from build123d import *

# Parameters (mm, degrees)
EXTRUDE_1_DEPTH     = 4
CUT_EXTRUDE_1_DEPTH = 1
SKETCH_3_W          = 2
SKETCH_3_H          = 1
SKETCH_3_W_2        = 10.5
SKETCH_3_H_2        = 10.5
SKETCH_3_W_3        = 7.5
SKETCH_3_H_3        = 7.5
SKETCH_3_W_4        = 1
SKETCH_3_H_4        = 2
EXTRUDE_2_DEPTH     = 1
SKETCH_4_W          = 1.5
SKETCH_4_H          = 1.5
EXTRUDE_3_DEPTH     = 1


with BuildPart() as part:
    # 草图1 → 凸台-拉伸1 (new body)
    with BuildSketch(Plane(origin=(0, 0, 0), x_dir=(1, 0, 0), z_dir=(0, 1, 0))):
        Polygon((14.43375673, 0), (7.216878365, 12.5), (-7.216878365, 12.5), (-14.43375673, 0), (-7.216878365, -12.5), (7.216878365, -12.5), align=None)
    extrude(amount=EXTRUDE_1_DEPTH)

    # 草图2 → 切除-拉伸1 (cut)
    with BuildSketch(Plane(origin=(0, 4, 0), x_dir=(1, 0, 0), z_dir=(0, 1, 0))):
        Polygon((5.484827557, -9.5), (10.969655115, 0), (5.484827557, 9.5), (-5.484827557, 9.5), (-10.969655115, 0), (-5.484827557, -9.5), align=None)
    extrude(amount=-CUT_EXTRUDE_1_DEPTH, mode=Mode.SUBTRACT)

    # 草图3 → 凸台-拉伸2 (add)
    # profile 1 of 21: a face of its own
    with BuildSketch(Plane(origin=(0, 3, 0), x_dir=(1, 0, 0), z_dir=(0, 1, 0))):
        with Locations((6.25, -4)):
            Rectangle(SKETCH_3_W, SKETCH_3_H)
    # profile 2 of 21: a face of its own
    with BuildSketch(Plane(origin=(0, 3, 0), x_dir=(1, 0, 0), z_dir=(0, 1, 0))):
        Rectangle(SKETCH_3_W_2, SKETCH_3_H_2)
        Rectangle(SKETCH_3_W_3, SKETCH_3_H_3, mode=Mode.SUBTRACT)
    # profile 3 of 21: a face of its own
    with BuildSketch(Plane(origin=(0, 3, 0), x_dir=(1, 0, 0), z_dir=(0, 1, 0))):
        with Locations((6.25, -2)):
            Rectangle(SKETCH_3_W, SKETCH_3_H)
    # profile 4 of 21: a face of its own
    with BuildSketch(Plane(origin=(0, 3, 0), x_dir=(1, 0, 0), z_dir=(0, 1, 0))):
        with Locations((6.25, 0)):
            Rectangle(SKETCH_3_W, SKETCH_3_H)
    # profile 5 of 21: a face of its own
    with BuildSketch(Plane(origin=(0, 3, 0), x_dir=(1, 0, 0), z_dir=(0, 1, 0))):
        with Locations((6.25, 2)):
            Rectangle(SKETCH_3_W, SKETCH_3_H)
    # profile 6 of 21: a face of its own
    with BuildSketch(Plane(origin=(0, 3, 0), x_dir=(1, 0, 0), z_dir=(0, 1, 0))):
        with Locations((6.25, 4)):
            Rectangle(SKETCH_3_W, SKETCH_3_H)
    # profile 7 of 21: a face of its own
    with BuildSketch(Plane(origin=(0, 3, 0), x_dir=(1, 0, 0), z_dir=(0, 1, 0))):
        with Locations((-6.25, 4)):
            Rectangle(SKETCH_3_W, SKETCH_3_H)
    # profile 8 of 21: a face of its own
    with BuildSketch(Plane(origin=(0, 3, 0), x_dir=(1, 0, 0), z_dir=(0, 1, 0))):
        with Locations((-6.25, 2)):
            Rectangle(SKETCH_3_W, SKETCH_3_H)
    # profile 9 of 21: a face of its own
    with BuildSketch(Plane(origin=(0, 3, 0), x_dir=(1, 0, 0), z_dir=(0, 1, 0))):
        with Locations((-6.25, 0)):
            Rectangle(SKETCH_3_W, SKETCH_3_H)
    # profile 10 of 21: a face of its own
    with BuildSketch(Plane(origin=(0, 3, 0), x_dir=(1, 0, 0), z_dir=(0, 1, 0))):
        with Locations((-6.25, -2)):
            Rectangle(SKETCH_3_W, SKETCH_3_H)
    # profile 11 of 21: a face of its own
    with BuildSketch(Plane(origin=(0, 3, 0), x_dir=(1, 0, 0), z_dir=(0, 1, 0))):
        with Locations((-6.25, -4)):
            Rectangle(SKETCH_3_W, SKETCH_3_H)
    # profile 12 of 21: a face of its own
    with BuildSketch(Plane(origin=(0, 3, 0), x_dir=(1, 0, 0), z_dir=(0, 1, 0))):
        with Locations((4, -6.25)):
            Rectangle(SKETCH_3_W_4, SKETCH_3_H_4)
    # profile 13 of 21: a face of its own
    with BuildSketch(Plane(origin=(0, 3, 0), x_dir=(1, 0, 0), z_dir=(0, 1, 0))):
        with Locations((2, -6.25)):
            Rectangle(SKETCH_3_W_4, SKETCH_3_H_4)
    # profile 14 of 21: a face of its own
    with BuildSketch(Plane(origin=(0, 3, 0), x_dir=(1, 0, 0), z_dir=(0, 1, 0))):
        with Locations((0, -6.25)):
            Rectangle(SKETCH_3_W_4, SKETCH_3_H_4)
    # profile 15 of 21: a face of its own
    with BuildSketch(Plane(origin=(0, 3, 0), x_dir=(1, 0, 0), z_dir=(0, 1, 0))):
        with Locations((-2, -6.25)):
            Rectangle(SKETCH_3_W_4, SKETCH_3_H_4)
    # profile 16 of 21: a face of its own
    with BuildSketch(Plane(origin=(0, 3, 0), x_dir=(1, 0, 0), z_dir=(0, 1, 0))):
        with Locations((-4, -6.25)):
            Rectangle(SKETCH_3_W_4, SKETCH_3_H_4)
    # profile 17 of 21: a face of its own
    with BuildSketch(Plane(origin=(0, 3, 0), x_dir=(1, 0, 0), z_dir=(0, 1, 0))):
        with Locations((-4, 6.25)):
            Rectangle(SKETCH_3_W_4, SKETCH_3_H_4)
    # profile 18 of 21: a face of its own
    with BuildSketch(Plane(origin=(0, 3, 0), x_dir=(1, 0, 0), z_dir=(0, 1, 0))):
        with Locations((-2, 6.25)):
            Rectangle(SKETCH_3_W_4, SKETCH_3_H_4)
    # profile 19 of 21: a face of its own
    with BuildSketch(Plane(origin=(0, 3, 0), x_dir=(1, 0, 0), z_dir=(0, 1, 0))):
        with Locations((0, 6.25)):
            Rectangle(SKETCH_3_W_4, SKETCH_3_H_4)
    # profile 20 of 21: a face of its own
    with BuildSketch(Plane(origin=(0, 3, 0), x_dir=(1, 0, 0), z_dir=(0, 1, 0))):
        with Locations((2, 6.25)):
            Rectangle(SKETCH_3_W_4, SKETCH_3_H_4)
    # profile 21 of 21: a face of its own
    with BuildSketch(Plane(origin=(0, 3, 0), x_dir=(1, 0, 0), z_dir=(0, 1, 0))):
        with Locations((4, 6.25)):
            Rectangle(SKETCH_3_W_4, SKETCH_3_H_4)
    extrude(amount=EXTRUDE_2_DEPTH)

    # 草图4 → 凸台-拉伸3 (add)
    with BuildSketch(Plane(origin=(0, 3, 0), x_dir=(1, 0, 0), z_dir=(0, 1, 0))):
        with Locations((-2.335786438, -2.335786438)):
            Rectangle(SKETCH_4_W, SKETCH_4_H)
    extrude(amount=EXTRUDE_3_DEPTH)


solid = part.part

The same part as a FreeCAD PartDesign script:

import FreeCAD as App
import Part
import Sketcher
Q = App.Units.Quantity


def add_polygon(sketch, points):
    """Adds a closed chain of lines whose ends are joined by coincident constraints."""
    first, n = sketch.GeometryCount, len(points)
    for a, b in zip(points, points[1:] + points[:1]):
        sketch.addGeometry(Part.LineSegment(App.Vector(*a, 0), App.Vector(*b, 0)), False)
    for i in range(n):
        sketch.addConstraint(Sketcher.Constraint("Coincident", first + i, 2, first + (i + 1) % n, 1))

doc = App.newDocument("Part")
body = doc.addObject("PartDesign::Body", "Body")

# Sketch on XZ plane
sketch1 = body.newObject("Sketcher::SketchObject", "Sketch")
sketch1.AttachmentSupport = (doc.getObject("XZ_Plane"), [""])
sketch1.MapMode = "FlatFace"
add_polygon(sketch1, [(14.433757, 0), (7.216878, -12.5), (-7.216878, -12.5), (-14.433757, 0), (-7.216878, 12.5), (7.216878, 12.5)])  # lines 0-5
sketch1.addConstraint([
    Sketcher.Constraint("Horizontal", 1),
    Sketcher.Constraint("Horizontal", 4),
    Sketcher.Constraint("Symmetric", 0, 2, 3, 2, -1, 1),
    Sketcher.Constraint("Symmetric", 2, 2, 5, 2, -1, 1),
    Sketcher.Constraint("PointOnObject", 2, 2, -1),
    Sketcher.Constraint("Parallel", 2, 5),
    Sketcher.Constraint("Vertical", 1, 2, 3, 2),
    Sketcher.Constraint("Angle", 0, Q("-120 deg")),
    Sketcher.Constraint("DistanceY", 1, 2, 3, 2, Q("25 mm")),
    Sketcher.Constraint("DistanceX", 1, 2, 1, 1, Q("14.433757 mm")),
])
pad1 = body.newObject("PartDesign::Pad", "Pad")
pad1.Profile = sketch1
pad1.Length = 4
pad1.Reversed = True

# Sketch on XZ plane
sketch2 = body.newObject("Sketcher::SketchObject", "Sketch001")
sketch2.AttachmentSupport = (doc.getObject("XZ_Plane"), [""])
sketch2.MapMode = "FlatFace"
sketch2.AttachmentOffset = App.Placement(App.Vector(0, 0, -4), App.Rotation())
add_polygon(sketch2, [(5.484828, 9.5), (10.969655, 0), (5.484828, -9.5), (-5.484828, -9.5), (-10.969655, 0), (-5.484828, 9.5)])  # lines 0-5
sketch2.addConstraint([
    Sketcher.Constraint("Horizontal", 2),
    Sketcher.Constraint("Horizontal", 5),
    Sketcher.Constraint("Symmetric", 0, 2, 3, 2, -1, 1),
    Sketcher.Constraint("Symmetric", 1, 2, 4, 2, -1, 1),
    Sketcher.Constraint("PointOnObject", 0, 2, -1),
    Sketcher.Constraint("Parallel", 0, 3),
    Sketcher.Constraint("Vertical", 2, 2, 4, 2),
    Sketcher.Constraint("Angle", 0, Q("-60 deg")),
    Sketcher.Constraint("DistanceY", 2, 2, 4, 2, Q("19 mm")),
    Sketcher.Constraint("DistanceX", 2, 2, 2, 1, Q("10.969655 mm")),
])
pocket1 = body.newObject("PartDesign::Pocket", "Pocket")
pocket1.Profile = sketch2
pocket1.Length = 1
pocket1.Reversed = True

# Sketch on XZ plane
sketch3 = body.newObject("Sketcher::SketchObject", "Sketch002")
sketch3.AttachmentSupport = (doc.getObject("XZ_Plane"), [""])
sketch3.MapMode = "FlatFace"
sketch3.AttachmentOffset = App.Placement(App.Vector(0, 0, -3), App.Rotation())
add_polygon(sketch3, [(5.25, 4.5), (7.25, 4.5), (7.25, 3.5), (5.25, 3.5), (5.25, 2.5), (7.25, 2.5), (7.25, 1.5), (5.25, 1.5), (5.25, 0.5), (7.25, 0.5), (7.25, -0.5), (5.25, -0.5), (5.25, -1.5), (7.25, -1.5), (7.25, -2.5), (5.25, -2.5), (5.25, -3.5), (7.25, -3.5), (7.25, -4.5), (5.25, -4.5), (5.25, -5.25), (4.5, -5.25), (4.5, -7.25), (3.5, -7.25), (3.5, -5.25), (2.5, -5.25), (2.5, -7.25), (1.5, -7.25), (1.5, -5.25), (0.5, -5.25), (0.5, -7.25), (-0.5, -7.25), (-0.5, -5.25), (-1.5, -5.25), (-1.5, -7.25), (-2.5, -7.25), (-2.5, -5.25), (-3.5, -5.25), (-3.5, -7.25), (-4.5, -7.25), (-4.5, -5.25), (-5.25, -5.25), (-5.25, -4.5), (-7.25, -4.5), (-7.25, -3.5), (-5.25, -3.5), (-5.25, -2.5), (-7.25, -2.5), (-7.25, -1.5), (-5.25, -1.5), (-5.25, -0.5), (-7.25, -0.5), (-7.25, 0.5), (-5.25, 0.5), (-5.25, 1.5), (-7.25, 1.5), (-7.25, 2.5), (-5.25, 2.5), (-5.25, 3.5), (-7.25, 3.5), (-7.25, 4.5), (-5.25, 4.5), (-5.25, 5.25), (-4.5, 5.25), (-4.5, 7.25), (-3.5, 7.25), (-3.5, 5.25), (-2.5, 5.25), (-2.5, 7.25), (-1.5, 7.25), (-1.5, 5.25), (-0.5, 5.25), (-0.5, 7.25), (0.5, 7.25), (0.5, 5.25), (1.5, 5.25), (1.5, 7.25), (2.5, 7.25), (2.5, 5.25), (3.5, 5.25), (3.5, 7.25), (4.5, 7.25), (4.5, 5.25), (5.25, 5.25)])  # lines 0-83
add_polygon(sketch3, [(-3.75, 3.75), (-3.75, -3.75), (3.75, -3.75), (3.75, 3.75)])  # lines 84-87
sketch3.addConstraint([
    Sketcher.Constraint("Horizontal", 0),
    Sketcher.Constraint("Vertical", 1),
    Sketcher.Constraint("Horizontal", 2),
    Sketcher.Constraint("Vertical", 3),
    Sketcher.Constraint("Horizontal", 4),
    Sketcher.Constraint("Vertical", 5),
    Sketcher.Constraint("Horizontal", 6),
    Sketcher.Constraint("Vertical", 7),
    Sketcher.Constraint("Horizontal", 8),
    Sketcher.Constraint("Vertical", 9),
    Sketcher.Constraint("Horizontal", 10),
    Sketcher.Constraint("Vertical", 11),
    Sketcher.Constraint("Horizontal", 12),
    Sketcher.Constraint("Vertical", 13),
    Sketcher.Constraint("Horizontal", 14),
    Sketcher.Constraint("Vertical", 15),
    Sketcher.Constraint("Horizontal", 16),
    Sketcher.Constraint("Vertical", 17),
    Sketcher.Constraint("Horizontal", 18),
    Sketcher.Constraint("Vertical", 19),
    Sketcher.Constraint("Horizontal", 20),
    Sketcher.Constraint("Vertical", 21),
    Sketcher.Constraint("Horizontal", 22),
    Sketcher.Constraint("Vertical", 23),
    Sketcher.Constraint("Horizontal", 24),
    Sketcher.Constraint("Vertical", 25),
    Sketcher.Constraint("Horizontal", 26),
    Sketcher.Constraint("Vertical", 27),
    Sketcher.Constraint("Horizontal", 28),
    Sketcher.Constraint("Vertical", 29),
    Sketcher.Constraint("Horizontal", 30),
    Sketcher.Constraint("Vertical", 31),
    Sketcher.Constraint("Horizontal", 32),
    Sketcher.Constraint("Vertical", 33),
    Sketcher.Constraint("Horizontal", 34),
    Sketcher.Constraint("Vertical", 35),
    Sketcher.Constraint("Horizontal", 36),
    Sketcher.Constraint("Vertical", 37),
    Sketcher.Constraint("Horizontal", 38),
    Sketcher.Constraint("Vertical", 39),
    Sketcher.Constraint("Horizontal", 40),
    Sketcher.Constraint("Vertical", 41),
    Sketcher.Constraint("Horizontal", 42),
    Sketcher.Constraint("Vertical", 43),
    Sketcher.Constraint("Horizontal", 44),
    Sketcher.Constraint("Vertical", 45),
    Sketcher.Constraint("Horizontal", 46),
    Sketcher.Constraint("Vertical", 47),
    Sketcher.Constraint("Horizontal", 48),
    Sketcher.Constraint("Vertical", 49),
    Sketcher.Constraint("Horizontal", 50),
    Sketcher.Constraint("Vertical", 51),
    Sketcher.Constraint("Horizontal", 52),
    Sketcher.Constraint("Vertical", 53),
    Sketcher.Constraint("Horizontal", 54),
    Sketcher.Constraint("Vertical", 55),
    Sketcher.Constraint("Horizontal", 56),
    Sketcher.Constraint("Vertical", 57),
    Sketcher.Constraint("Horizontal", 58),
    Sketcher.Constraint("Vertical", 59),
    Sketcher.Constraint("Horizontal", 60),
    Sketcher.Constraint("Vertical", 61),
    Sketcher.Constraint("Horizontal", 62),
    Sketcher.Constraint("Vertical", 63),
    Sketcher.Constraint("Horizontal", 64),
    Sketcher.Constraint("Vertical", 65),
    Sketcher.Constraint("Horizontal", 66),
    Sketcher.Constraint("Vertical", 67),
    Sketcher.Constraint("Horizontal", 68),
    Sketcher.Constraint("Vertical", 69),
    Sketcher.Constraint("Horizontal", 70),
    Sketcher.Constraint("Vertical", 71),
    Sketcher.Constraint("Horizontal", 72),
    Sketcher.Constraint("Vertical", 73),
    Sketcher.Constraint("Horizontal", 74),
    Sketcher.Constraint("Vertical", 75),
    Sketcher.Constraint("Horizontal", 76),
    Sketcher.Constraint("Vertical", 77),
    Sketcher.Constraint("Horizontal", 78),
    Sketcher.Constraint("Vertical", 79),
    Sketcher.Constraint("Horizontal", 80),
    Sketcher.Constraint("Vertical", 81),
    Sketcher.Constraint("Horizontal", 82),
    Sketcher.Constraint("Vertical", 83),
    Sketcher.Constraint("Vertical", 84),
    Sketcher.Constraint("Horizontal", 85),
    Sketcher.Constraint("Vertical", 86),
    Sketcher.Constraint("Horizontal", 87),
    Sketcher.Constraint("Symmetric", 0, 2, 42, 2, -1, 1),
    Sketcher.Constraint("Symmetric", 2, 2, 44, 2, -1, 1),
    Sketcher.Constraint("Symmetric", 4, 2, 46, 2, -1, 1),
    Sketcher.Constraint("Symmetric", 6, 2, 48, 2, -1, 1),
    Sketcher.Constraint("Symmetric", 8, 2, 50, 2, -1, 1),
    Sketcher.Constraint("Symmetric", 10, 2, 52, 2, -1, 1),
    Sketcher.Constraint("Symmetric", 12, 2, 54, 2, -1, 1),
    Sketcher.Constraint("Symmetric", 14, 2, 56, 2, -1, 1),
    Sketcher.Constraint("Symmetric", 16, 2, 58, 2, -1, 1),
    Sketcher.Constraint("Symmetric", 18, 2, 60, 2, -1, 1),
    Sketcher.Constraint("Symmetric", 20, 2, 62, 2, -1, 1),
    Sketcher.Constraint("Symmetric", 22, 2, 64, 2, -1, 1),
    Sketcher.Constraint("Symmetric", 24, 2, 66, 2, -1, 1),
    Sketcher.Constraint("Symmetric", 26, 2, 68, 2, -1, 1),
    Sketcher.Constraint("Symmetric", 28, 2, 70, 2, -1, 1),
    Sketcher.Constraint("Symmetric", 30, 2, 72, 2, -1, 1),
    Sketcher.Constraint("Symmetric", 32, 2, 74, 2, -1, 1),
    Sketcher.Constraint("Symmetric", 34, 2, 76, 2, -1, 1),
    Sketcher.Constraint("Symmetric", 36, 2, 78, 2, -1, 1),
    Sketcher.Constraint("Symmetric", 38, 2, 80, 2, -1, 1),
    Sketcher.Constraint("Symmetric", 40, 2, 82, 2, -1, 1),
    Sketcher.Constraint("Symmetric", 84, 2, 86, 2, -1, 1),
    Sketcher.Constraint("Symmetric", 28, 2, 31, 2, -2),
    Sketcher.Constraint("Symmetric", 26, 2, 33, 2, -2),
    Sketcher.Constraint("Symmetric", 24, 2, 35, 2, -2),
    Sketcher.Constraint("Symmetric", 22, 2, 37, 2, -2),
    Sketcher.Constraint("Symmetric", 20, 2, 39, 2, -2),
    Sketcher.Constraint("Symmetric", 18, 2, 41, 2, -2),
    Sketcher.Constraint("Symmetric", 16, 2, 43, 2, -2),
    Sketcher.Constraint("Symmetric", 14, 2, 45, 2, -2),
    Sketcher.Constraint("Symmetric", 12, 2, 47, 2, -2),
    Sketcher.Constraint("Symmetric", 10, 2, 49, 2, -2),
    Sketcher.Constraint("Horizontal", 20, 2, 23, 2),
    Sketcher.Constraint("Horizontal", 22, 2, 25, 2),
    Sketcher.Constraint("Horizontal", 24, 2, 27, 2),
    Sketcher.Constraint("Horizontal", 26, 2, 29, 2),
    Sketcher.Constraint("Vertical", 1, 2, 4, 2),
    Sketcher.Constraint("Vertical", 3, 2, 6, 2),
    Sketcher.Constraint("Vertical", 5, 2, 8, 2),
    Sketcher.Constraint("Vertical", 15, 2, 18, 2),
    Sketcher.Constraint("Equal", 22, 24),
    Sketcher.Constraint("Equal", 24, 26),
    Sketcher.Constraint("Equal", 26, 28),
    Sketcher.Constraint("Equal", 28, 30),
    Sketcher.Constraint("Equal", 80, 1),
    Sketcher.Constraint("Equal", 1, 3),
    Sketcher.Constraint("Equal", 3, 5),
    Sketcher.Constraint("Equal", 5, 7),
    Sketcher.Constraint("Equal", 7, 9),
    Sketcher.Constraint("Equal", 82, 19),
    Sketcher.Constraint("Equal", 60, 21),
    Sketcher.Constraint("Equal", 87, 84),
    Sketcher.Constraint("DistanceX", 0, 1, 0, 2, Q("2 mm")),
    Sketcher.Constraint("DistanceX", 22, 2, 22, 1, Q("1 mm")),
    Sketcher.Constraint("DistanceX", 85, 1, 85, 2, Q("7.5 mm")),
    Sketcher.Constraint("DistanceX", 20, 2, 20, 1, Q("0.75 mm")),
])
pad2 = body.newObject("PartDesign::Pad", "Pad001")
pad2.Profile = sketch3
pad2.Length = 1
pad2.Reversed = True

# Sketch on XZ plane
sketch4 = body.newObject("Sketcher::SketchObject", "Sketch003")
sketch4.AttachmentSupport = (doc.getObject("XZ_Plane"), [""])
sketch4.MapMode = "FlatFace"
sketch4.AttachmentOffset = App.Placement(App.Vector(0, 0, -3), App.Rotation())
add_polygon(sketch4, [(-3.085786, 1.585786), (-3.085786, 3.085786), (-1.585786, 3.085786), (-1.585786, 1.585786)])  # lines 0-3
sketch4.addConstraint([
    Sketcher.Constraint("Vertical", 0),
    Sketcher.Constraint("Horizontal", 1),
    Sketcher.Constraint("Vertical", 2),
    Sketcher.Constraint("Horizontal", 3),
    Sketcher.Constraint("Equal", 3, 0),
    Sketcher.Constraint("DistanceX", 1, 1, 1, 2, Q("1.5 mm")),
    Sketcher.Constraint("DistanceX", 0, 2, -1, 1, Q("3.085786 mm")),
    Sketcher.Constraint("DistanceY", -1, 1, 0, 2, Q("3.085786 mm")),
])
pad3 = body.newObject("PartDesign::Pad", "Pad002")
pad3.Profile = sketch4
pad3.Length = 1
pad3.Reversed = True

doc.recompute()
